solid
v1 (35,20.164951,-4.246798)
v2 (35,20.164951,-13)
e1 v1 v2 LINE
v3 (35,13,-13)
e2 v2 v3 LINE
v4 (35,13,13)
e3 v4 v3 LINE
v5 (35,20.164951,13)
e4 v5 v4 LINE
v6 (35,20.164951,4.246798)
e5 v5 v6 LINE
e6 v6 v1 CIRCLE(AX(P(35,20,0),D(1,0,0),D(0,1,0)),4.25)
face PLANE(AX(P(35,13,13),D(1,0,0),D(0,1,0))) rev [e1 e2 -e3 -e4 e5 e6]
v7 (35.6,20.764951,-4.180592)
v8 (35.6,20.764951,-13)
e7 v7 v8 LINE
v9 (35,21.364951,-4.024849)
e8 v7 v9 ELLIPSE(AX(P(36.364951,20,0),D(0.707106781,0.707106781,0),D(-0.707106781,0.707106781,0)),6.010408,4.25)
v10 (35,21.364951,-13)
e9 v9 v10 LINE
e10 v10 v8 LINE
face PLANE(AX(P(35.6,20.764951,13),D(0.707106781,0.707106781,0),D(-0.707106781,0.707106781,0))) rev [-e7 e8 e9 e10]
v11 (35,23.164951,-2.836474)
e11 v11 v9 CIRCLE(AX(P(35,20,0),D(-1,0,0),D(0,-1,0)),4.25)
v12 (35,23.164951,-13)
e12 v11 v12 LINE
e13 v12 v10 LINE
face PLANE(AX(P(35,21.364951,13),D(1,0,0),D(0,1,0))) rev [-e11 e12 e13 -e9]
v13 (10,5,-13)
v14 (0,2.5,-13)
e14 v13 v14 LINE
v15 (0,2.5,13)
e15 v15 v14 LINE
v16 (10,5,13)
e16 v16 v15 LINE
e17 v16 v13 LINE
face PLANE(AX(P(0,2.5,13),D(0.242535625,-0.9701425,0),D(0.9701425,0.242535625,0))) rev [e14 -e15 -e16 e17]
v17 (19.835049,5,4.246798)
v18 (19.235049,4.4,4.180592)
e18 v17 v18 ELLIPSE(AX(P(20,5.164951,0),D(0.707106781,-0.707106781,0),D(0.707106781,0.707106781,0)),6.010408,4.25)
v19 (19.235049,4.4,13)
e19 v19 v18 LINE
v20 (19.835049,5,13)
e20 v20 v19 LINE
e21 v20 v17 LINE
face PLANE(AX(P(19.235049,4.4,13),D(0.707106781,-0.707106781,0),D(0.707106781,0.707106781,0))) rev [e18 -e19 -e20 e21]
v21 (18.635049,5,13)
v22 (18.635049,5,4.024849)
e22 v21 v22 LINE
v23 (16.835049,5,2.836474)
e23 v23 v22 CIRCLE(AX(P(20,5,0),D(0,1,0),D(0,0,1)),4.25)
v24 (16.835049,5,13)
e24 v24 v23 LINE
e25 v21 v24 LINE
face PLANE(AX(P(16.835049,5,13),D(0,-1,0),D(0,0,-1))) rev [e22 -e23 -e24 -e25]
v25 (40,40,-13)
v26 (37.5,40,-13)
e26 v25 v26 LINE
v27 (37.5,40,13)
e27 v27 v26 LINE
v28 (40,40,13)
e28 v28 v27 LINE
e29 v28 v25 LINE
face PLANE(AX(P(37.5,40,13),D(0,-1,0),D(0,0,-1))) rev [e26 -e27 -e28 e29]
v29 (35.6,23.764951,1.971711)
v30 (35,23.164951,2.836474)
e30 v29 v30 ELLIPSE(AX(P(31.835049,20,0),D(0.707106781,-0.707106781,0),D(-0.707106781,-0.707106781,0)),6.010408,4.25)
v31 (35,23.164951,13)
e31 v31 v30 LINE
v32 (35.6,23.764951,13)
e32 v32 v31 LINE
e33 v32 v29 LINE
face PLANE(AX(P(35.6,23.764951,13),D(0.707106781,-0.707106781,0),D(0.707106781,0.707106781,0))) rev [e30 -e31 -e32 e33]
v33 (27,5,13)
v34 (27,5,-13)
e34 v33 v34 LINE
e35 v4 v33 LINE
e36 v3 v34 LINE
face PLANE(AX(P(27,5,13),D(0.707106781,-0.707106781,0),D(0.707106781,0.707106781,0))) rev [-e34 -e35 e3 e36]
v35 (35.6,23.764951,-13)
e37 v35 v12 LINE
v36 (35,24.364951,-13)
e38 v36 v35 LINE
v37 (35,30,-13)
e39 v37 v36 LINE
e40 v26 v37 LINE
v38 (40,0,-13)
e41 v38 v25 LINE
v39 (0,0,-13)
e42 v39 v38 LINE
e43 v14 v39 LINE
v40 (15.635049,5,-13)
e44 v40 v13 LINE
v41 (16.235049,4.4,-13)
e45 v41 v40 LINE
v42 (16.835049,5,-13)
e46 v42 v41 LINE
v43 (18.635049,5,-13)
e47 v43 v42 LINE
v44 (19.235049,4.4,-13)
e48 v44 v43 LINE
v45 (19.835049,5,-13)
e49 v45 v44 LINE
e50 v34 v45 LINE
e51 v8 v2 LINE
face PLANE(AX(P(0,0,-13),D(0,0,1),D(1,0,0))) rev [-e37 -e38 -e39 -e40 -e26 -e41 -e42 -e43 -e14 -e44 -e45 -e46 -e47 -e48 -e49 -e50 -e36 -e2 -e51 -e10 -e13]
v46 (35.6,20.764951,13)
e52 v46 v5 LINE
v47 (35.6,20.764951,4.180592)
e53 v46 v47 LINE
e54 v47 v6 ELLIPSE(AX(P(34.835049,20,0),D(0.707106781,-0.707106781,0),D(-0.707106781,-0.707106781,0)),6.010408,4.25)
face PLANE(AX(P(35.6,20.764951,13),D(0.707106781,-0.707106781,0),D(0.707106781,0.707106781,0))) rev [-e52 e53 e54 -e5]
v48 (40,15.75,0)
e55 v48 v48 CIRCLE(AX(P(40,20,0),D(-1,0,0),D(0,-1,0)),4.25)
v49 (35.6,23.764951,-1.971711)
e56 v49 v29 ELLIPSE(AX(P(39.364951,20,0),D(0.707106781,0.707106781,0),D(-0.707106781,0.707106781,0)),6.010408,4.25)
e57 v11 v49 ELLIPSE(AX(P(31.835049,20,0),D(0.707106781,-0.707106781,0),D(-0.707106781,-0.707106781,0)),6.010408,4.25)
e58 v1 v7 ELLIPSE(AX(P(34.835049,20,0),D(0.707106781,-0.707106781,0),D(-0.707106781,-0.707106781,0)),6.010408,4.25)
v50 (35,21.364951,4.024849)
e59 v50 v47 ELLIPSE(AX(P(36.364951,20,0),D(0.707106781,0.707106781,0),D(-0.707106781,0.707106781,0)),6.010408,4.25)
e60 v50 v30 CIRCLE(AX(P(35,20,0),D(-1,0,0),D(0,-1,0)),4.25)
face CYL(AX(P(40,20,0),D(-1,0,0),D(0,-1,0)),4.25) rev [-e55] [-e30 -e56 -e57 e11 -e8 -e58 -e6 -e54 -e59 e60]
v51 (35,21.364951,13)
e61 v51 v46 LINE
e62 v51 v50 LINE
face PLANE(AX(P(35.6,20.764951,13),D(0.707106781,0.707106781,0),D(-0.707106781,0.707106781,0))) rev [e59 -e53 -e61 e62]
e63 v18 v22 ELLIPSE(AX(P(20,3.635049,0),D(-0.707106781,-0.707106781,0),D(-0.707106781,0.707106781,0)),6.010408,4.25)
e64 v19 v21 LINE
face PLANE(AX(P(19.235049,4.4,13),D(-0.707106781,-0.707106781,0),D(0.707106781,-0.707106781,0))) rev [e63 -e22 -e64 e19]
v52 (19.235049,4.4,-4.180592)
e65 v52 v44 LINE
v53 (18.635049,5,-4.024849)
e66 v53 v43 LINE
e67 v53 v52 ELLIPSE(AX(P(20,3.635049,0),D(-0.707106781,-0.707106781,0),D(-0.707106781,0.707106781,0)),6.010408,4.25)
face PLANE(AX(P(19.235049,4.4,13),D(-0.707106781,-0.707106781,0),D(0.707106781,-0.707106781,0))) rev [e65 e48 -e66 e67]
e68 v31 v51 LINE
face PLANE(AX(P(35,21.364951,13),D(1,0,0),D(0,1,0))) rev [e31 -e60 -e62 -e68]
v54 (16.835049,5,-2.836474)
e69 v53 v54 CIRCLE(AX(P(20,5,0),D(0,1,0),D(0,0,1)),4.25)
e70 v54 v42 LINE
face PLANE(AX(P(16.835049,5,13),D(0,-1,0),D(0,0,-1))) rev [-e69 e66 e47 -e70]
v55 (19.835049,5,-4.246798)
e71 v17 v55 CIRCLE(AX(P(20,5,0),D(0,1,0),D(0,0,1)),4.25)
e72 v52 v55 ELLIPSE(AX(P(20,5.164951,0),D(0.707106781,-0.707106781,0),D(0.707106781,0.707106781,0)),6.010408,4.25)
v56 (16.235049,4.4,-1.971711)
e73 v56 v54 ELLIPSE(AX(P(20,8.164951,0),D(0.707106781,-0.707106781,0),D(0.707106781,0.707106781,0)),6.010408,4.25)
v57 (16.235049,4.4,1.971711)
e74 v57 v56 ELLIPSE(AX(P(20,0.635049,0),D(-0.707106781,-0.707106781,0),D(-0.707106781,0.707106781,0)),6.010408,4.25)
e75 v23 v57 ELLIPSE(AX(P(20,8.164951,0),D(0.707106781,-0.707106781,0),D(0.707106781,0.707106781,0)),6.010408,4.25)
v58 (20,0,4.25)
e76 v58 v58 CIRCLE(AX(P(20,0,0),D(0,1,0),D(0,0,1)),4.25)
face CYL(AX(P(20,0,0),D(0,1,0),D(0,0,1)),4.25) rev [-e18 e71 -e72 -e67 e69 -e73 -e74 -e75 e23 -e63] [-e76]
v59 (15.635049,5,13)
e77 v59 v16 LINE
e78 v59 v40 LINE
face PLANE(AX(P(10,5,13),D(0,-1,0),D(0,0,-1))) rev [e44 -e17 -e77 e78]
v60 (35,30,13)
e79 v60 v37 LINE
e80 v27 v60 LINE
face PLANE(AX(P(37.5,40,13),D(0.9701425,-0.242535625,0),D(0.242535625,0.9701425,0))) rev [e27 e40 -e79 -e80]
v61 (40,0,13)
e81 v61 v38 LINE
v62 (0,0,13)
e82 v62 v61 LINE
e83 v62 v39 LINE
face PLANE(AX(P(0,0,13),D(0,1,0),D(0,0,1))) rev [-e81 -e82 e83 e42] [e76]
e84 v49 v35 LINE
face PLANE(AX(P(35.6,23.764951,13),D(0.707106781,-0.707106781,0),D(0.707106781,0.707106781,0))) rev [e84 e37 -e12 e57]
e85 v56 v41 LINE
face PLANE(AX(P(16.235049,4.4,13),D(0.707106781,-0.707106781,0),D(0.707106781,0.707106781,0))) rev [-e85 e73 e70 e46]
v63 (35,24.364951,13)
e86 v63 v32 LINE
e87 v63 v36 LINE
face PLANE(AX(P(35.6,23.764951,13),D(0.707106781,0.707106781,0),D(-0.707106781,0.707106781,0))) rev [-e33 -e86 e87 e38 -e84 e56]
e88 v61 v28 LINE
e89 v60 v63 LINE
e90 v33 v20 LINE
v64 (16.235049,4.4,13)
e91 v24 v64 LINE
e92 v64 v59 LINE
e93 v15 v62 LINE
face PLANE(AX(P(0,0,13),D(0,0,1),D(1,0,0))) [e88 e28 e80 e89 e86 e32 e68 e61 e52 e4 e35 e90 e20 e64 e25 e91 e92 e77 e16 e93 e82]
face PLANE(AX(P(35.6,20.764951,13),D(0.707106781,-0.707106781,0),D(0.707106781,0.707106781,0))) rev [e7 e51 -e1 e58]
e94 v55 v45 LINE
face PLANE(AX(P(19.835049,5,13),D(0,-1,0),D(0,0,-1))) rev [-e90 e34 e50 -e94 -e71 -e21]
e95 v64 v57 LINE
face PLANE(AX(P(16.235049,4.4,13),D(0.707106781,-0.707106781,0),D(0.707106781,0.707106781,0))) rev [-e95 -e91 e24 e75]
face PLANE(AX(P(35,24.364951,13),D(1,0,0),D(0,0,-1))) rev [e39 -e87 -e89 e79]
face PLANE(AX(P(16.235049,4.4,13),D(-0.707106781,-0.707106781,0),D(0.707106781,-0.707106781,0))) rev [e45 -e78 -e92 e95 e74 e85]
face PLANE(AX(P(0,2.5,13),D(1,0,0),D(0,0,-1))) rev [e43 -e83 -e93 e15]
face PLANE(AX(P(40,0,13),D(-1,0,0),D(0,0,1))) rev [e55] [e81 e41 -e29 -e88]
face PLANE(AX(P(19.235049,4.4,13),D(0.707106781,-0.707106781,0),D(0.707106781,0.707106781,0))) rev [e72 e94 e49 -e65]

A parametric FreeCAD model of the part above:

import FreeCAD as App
import Part
import Sketcher

doc = App.newDocument("Part")
body = doc.addObject("PartDesign::Body", "Body")

sketch1 = body.newObject("Sketcher::SketchObject", "Sketch")
sketch1.AttachmentSupport = (doc.getObject("XY_Plane"), [""])
sketch1.MapMode = "FlatFace"
sketch1.addGeometry([
    Part.LineSegment(App.Vector(0, 0, 0), App.Vector(40, 0, 0)),
    Part.LineSegment(App.Vector(40, 0, 0), App.Vector(40, 40, 0)),
    Part.LineSegment(App.Vector(40, 40, 0), App.Vector(37.5, 40, 0)),
    Part.LineSegment(App.Vector(37.5, 40, 0), App.Vector(35, 30, 0)),
    Part.LineSegment(App.Vector(35, 30, 0), App.Vector(35, 24.364951, 0)),
    Part.LineSegment(App.Vector(35, 24.364951, 0), App.Vector(35.6, 23.764951, 0)),
    Part.LineSegment(App.Vector(35.6, 23.764951, 0), App.Vector(35, 23.164951, 0)),
    Part.LineSegment(App.Vector(35, 23.164951, 0), App.Vector(35, 21.364951, 0)),
    Part.LineSegment(App.Vector(35, 21.364951, 0), App.Vector(35.6, 20.764951, 0)),
    Part.LineSegment(App.Vector(35.6, 20.764951, 0), App.Vector(35, 20.164951, 0)),
    Part.LineSegment(App.Vector(35, 20.164951, 0), App.Vector(35, 13, 0)),
    Part.LineSegment(App.Vector(35, 13, 0), App.Vector(27, 5, 0)),
    Part.LineSegment(App.Vector(27, 5, 0), App.Vector(19.835049, 5, 0)),
    Part.LineSegment(App.Vector(19.835049, 5, 0), App.Vector(19.235049, 4.4, 0)),
    Part.LineSegment(App.Vector(19.235049, 4.4, 0), App.Vector(18.635049, 5, 0)),
    Part.LineSegment(App.Vector(18.635049, 5, 0), App.Vector(16.835049, 5, 0)),
    Part.LineSegment(App.Vector(16.835049, 5, 0), App.Vector(16.235049, 4.4, 0)),
    Part.LineSegment(App.Vector(16.235049, 4.4, 0), App.Vector(15.635049, 5, 0)),
    Part.LineSegment(App.Vector(15.635049, 5, 0), App.Vector(10, 5, 0)),
    Part.LineSegment(App.Vector(10, 5, 0), App.Vector(0, 2.5, 0)),
    Part.LineSegment(App.Vector(0, 2.5, 0), App.Vector(0, 0, 0)),
], False)
sketch1.addConstraint([
    Sketcher.Constraint("Coincident", 0, 2, 1, 1),
    Sketcher.Constraint("Coincident", 1, 2, 2, 1),
    Sketcher.Constraint("Coincident", 2, 2, 3, 1),
    Sketcher.Constraint("Coincident", 3, 2, 4, 1),
    Sketcher.Constraint("Coincident", 4, 2, 5, 1),
    Sketcher.Constraint("Coincident", 5, 2, 6, 1),
    Sketcher.Constraint("Coincident", 6, 2, 7, 1),
    Sketcher.Constraint("Coincident", 7, 2, 8, 1),
    Sketcher.Constraint("Coincident", 8, 2, 9, 1),
    Sketcher.Constraint("Coincident", 9, 2, 10, 1),
    Sketcher.Constraint("Coincident", 10, 2, 11, 1),
    Sketcher.Constraint("Coincident", 11, 2, 12, 1),
    Sketcher.Constraint("Coincident", 12, 2, 13, 1),
    Sketcher.Constraint("Coincident", 13, 2, 14, 1),
    Sketcher.Constraint("Coincident", 14, 2, 15, 1),
    Sketcher.Constraint("Coincident", 15, 2, 16, 1),
    Sketcher.Constraint("Coincident", 16, 2, 17, 1),
    Sketcher.Constraint("Coincident", 17, 2, 18, 1),
    Sketcher.Constraint("Coincident", 18, 2, 19, 1),
    Sketcher.Constraint("Coincident", 19, 2, 20, 1),
    Sketcher.Constraint("Coincident", 20, 2, 0, 1),
    Sketcher.Constraint("Horizontal", 0),
    Sketcher.Constraint("Vertical", 1),
    Sketcher.Constraint("Horizontal", 2),
    Sketcher.Constraint("Vertical", 4),
    Sketcher.Constraint("Vertical", 7),
    Sketcher.Constraint("Vertical", 10),
    Sketcher.Constraint("Horizontal", 12),
    Sketcher.Constraint("Horizontal", 15),
    Sketcher.Constraint("Horizontal", 18),
    Sketcher.Constraint("Vertical", 20),
    Sketcher.Constraint("Coincident", 20, 2, -1, 1),
    Sketcher.Constraint("Perpendicular", 5, 6),
    Sketcher.Constraint("Perpendicular", 6, 8),
    Sketcher.Constraint("Perpendicular", 8, 9),
    Sketcher.Constraint("Parallel", 9, 11),
    Sketcher.Constraint("Parallel", 11, 13),
    Sketcher.Constraint("Perpendicular", 13, 14),
    Sketcher.Constraint("Perpendicular", 14, 16),
    Sketcher.Constraint("Perpendicular", 16, 17),
    Sketcher.Constraint("Horizontal", 12, 2, 14, 2),
    Sketcher.Constraint("Horizontal", 13, 2, 16, 2),
    Sketcher.Constraint("Horizontal", 15, 2, 17, 2),
    Sketcher.Constraint("Vertical", 4, 2, 6, 2),
    Sketcher.Constraint("Vertical", 5, 2, 8, 2),
    Sketcher.Constraint("Vertical", 7, 2, 9, 2),
    Sketcher.Constraint("Equal", 0, 1),
    Sketcher.Constraint("Equal", 18, 4),
    Sketcher.Constraint("Equal", 15, 7),
    Sketcher.Constraint("Equal", 12, 10),
    Sketcher.Constraint("Equal", 2, 20),
    Sketcher.Constraint("Equal", 5, 6),
    Sketcher.Constraint("Equal", 9, 13),
    Sketcher.Constraint("Equal", 3, 19),
    Sketcher.Constraint("DistanceX", 0, 1, 0, 2, 40.0),
    Sketcher.Constraint("DistanceX", 2, 2, 2, 1, 2.5),
    Sketcher.Constraint("DistanceX", 15, 2, 15, 1, 1.8),
    Sketcher.Constraint("DistanceX", -1, 1, 3, 2, 35.0),
    Sketcher.Constraint("DistanceY", -1, 1, 3, 2, 30.0),
    Sketcher.Constraint("DistanceY", -1, 1, 10, 2, 13.0),
    Sketcher.Constraint("DistanceY", 7, 2, 4, 2, 3.0),
    Sketcher.Constraint("DistanceX", 12, 2, 12, 1, 7.164951),
])
pad1 = body.newObject("PartDesign::Pad", "Pad")
pad1.Profile = sketch1
pad1.Length = 26
pad1.Midplane = True

sketch2 = body.newObject("Sketcher::SketchObject", "Sketch001")
sketch2.AttachmentSupport = (doc.getObject("XZ_Plane"), [""])
sketch2.MapMode = "FlatFace"
sketch2.AttachmentOffset = App.Placement(App.Vector(0, 0, -5), App.Rotation())
sketch2.addGeometry(Part.Circle(App.Vector(20, 0, 0), App.Vector(0, 0, 1), 4.25), False)
sketch2.addConstraint([
    Sketcher.Constraint("PointOnObject", 0, 3, -1),
    Sketcher.Constraint("Diameter", 0, 8.5),
    Sketcher.Constraint("DistanceX", -1, 1, 0, 3, 20.0),
])
pocket1 = body.newObject("PartDesign::Pocket", "Pocket")
pocket1.Profile = sketch2
pocket1.Type = "ThroughAll"
pocket1.Reversed = True

sketch3 = body.newObject("Sketcher::SketchObject", "Sketch002")
sketch3.AttachmentSupport = (doc.getObject("YZ_Plane"), [""])
sketch3.MapMode = "FlatFace"
sketch3.AttachmentOffset = App.Placement(App.Vector(0, 0, 35), App.Rotation())
sketch3.addGeometry(Part.Circle(App.Vector(20, 0, 0), App.Vector(0, 0, 1), 4.25), False)
sketch3.addConstraint([
    Sketcher.Constraint("PointOnObject", 0, 3, -1),
    Sketcher.Constraint("Diameter", 0, 8.5),
    Sketcher.Constraint("DistanceX", -1, 1, 0, 3, 20.0),
])
pocket2 = body.newObject("PartDesign::Pocket", "Pocket001")
pocket2.Profile = sketch3
pocket2.Type = "ThroughAll"
pocket2.Reversed = True

doc.recompute()
